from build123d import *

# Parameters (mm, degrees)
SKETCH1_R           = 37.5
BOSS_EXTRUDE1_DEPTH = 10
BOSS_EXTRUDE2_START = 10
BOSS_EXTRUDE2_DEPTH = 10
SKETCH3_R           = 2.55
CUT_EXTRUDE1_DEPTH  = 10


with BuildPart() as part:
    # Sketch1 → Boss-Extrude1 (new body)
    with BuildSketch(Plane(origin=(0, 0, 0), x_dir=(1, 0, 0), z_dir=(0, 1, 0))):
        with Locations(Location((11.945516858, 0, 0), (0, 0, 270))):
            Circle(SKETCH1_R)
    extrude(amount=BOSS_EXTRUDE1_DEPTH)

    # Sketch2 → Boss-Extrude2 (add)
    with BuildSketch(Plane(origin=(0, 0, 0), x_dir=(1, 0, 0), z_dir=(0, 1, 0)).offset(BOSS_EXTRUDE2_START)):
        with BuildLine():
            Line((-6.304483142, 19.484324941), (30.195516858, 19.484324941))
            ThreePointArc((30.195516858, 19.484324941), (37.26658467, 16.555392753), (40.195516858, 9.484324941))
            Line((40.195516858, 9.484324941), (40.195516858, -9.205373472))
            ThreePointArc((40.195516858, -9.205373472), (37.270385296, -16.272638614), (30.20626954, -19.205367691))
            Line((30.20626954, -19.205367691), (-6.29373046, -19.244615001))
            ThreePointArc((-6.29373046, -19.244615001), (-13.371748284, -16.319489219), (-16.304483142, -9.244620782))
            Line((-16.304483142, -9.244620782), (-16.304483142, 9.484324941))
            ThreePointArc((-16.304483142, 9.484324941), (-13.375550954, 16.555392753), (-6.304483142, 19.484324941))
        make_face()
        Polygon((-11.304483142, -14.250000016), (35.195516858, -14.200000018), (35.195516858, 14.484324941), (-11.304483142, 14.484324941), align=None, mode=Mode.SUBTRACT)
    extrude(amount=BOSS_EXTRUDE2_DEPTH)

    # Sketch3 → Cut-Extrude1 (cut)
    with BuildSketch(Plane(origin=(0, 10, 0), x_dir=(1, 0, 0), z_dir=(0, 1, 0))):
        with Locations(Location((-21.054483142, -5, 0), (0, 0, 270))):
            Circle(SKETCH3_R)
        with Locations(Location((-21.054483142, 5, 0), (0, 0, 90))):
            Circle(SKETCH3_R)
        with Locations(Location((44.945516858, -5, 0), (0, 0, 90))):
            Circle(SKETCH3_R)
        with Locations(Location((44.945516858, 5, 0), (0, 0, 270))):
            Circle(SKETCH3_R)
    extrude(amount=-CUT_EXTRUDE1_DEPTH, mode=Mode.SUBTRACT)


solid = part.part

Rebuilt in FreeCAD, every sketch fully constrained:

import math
import FreeCAD as App
import Part
import Sketcher

V = App.Vector
Q = App.Units.Quantity


def add_polygon(sketch, points):
    """Adds a closed chain of lines whose ends are joined by coincident constraints."""
    first, n = sketch.GeometryCount, len(points)
    for a, b in zip(points, points[1:] + points[:1]):
        sketch.addGeometry(Part.LineSegment(App.Vector(*a, 0), App.Vector(*b, 0)), False)
    for i in range(n):
        sketch.addConstraint(Sketcher.Constraint("Coincident", first + i, 2, first + (i + 1) % n, 1))

doc = App.newDocument("Part")
body = doc.addObject("PartDesign::Body", "Body")

# Sketch on XZ plane
sketch1 = body.newObject("Sketcher::SketchObject", "Sketch")
sketch1.AttachmentSupport = (doc.getObject("XZ_Plane"), [""])
sketch1.MapMode = "FlatFace"
sketch1.addGeometry(Part.Circle(V(12, 0, 0), V(0, 0, 1), 38), False)
sketch1.addConstraint([
    Sketcher.Constraint("PointOnObject", 0, 3, -1),
    Sketcher.Constraint("Diameter", 0, Q("75 mm")),
    Sketcher.Constraint("DistanceX", -1, 1, 0, 3, Q("11.945517 mm")),
])
pad1 = body.newObject("PartDesign::Pad", "Pad")
pad1.Profile = sketch1
pad1.Length = 10
pad1.Reversed = True

# Sketch on XZ plane
sketch2 = body.newObject("Sketcher::SketchObject", "Sketch001")
sketch2.AttachmentSupport = (doc.getObject("XZ_Plane"), [""])
sketch2.MapMode = "FlatFace"
sketch2.AttachmentOffset = App.Placement(V(0, 0, -10), App.Rotation())
sketch2.addGeometry(Part.LineSegment(V(30, -19, 0), V(-6, -19, 0)), False)  # 0
sketch2.addGeometry(Part.ArcOfCircle(Part.Circle(V(-6, -9, 0), V(0, 0, 1), 10), math.radians(180), math.radians(270)), False)  # 1
sketch2.addGeometry(Part.LineSegment(V(-16, -9, 0), V(-16, 9, 0)), False)  # 2
sketch2.addGeometry(Part.ArcOfCircle(Part.Circle(V(-6, 9, 0), V(0, 0, 1), 10), math.radians(90), math.radians(180)), False)  # 3
sketch2.addGeometry(Part.LineSegment(V(-6, 19, 0), V(30, 19, 0)), False)  # 4
sketch2.addGeometry(Part.ArcOfCircle(Part.Circle(V(30, 9, 0), V(0, 0, 1), 10), math.radians(0), math.radians(90)), False)  # 5
sketch2.addGeometry(Part.LineSegment(V(40, 9, 0), V(40, -9, 0)), False)  # 6
sketch2.addGeometry(Part.ArcOfCircle(Part.Circle(V(30, -9, 0), V(0, 0, 1), 10), math.radians(-90), math.radians(0)), False)  # 7
add_polygon(sketch2, [(-11, 14), (-11, -14), (35, -14), (35, 14)])  # lines 8-11
sketch2.addConstraint([
    Sketcher.Constraint("Tangent", 0, 2, 1, 2),
    Sketcher.Constraint("Tangent", 1, 1, 2, 1),
    Sketcher.Constraint("Tangent", 2, 2, 3, 2),
    Sketcher.Constraint("Tangent", 3, 1, 4, 1),
    Sketcher.Constraint("Tangent", 4, 2, 5, 2),
    Sketcher.Constraint("Tangent", 5, 1, 6, 1),
    Sketcher.Constraint("Tangent", 6, 2, 7, 2),
    Sketcher.Constraint("Tangent", 7, 1, 0, 1),
    Sketcher.Constraint("Horizontal", 0),
    Sketcher.Constraint("Vertical", 2),
    Sketcher.Constraint("Vertical", 6),
    Sketcher.Constraint("Vertical", 8),
    Sketcher.Constraint("Horizontal", 9),
    Sketcher.Constraint("Vertical", 10),
    Sketcher.Constraint("Equal", 1, 3),
    Sketcher.Constraint("Equal", 3, 5),
    Sketcher.Constraint("Equal", 5, 7),
    Sketcher.Constraint("Parallel", 4, 11),
    Sketcher.Constraint("Radius", 1, Q("10 mm")),
    Sketcher.Constraint("DistanceX", 0, 2, 0, 1, Q("36.5 mm")),
    Sketcher.Constraint("DistanceX", 9, 1, 9, 2, Q("46.5 mm")),
    Sketcher.Constraint("DistanceX", 8, 2, 1, 3, Q("5 mm")),
    Sketcher.Constraint("DistanceY", 8, 2, 1, 3, Q("5 mm")),
    Sketcher.Constraint("DistanceY", -1, 1, 10, 2, Q("14.2 mm")),
    Sketcher.Constraint("DistanceY", -1, 1, 11, 2, Q("14.25 mm")),
    Sketcher.Constraint("DistanceY", 6, 2, 6, 1, Q("18.689698 mm")),
    Sketcher.Constraint("DistanceY", 8, 2, 8, 1, Q("28.734325 mm")),
    Sketcher.Constraint("DistanceX", 3, 1, -1, 1, Q("6.29373 mm")),
])
pad2 = body.newObject("PartDesign::Pad", "Pad001")
pad2.Profile = sketch2
pad2.Length = 10
pad2.Reversed = True

# Sketch on XZ plane
sketch3 = body.newObject("Sketcher::SketchObject", "Sketch002")
sketch3.AttachmentSupport = (doc.getObject("XZ_Plane"), [""])
sketch3.MapMode = "FlatFace"
sketch3.AttachmentOffset = App.Placement(V(0, 0, -10), App.Rotation())
sketch3.addGeometry([
    Part.Circle(V(-21.1, 5, 0), V(0, 0, 1), 2.5),
    Part.Circle(V(-21.1, -5, 0), V(0, 0, 1), 2.5),
    Part.Circle(V(44.9, 5, 0), V(0, 0, 1), 2.5),
    Part.Circle(V(44.9, -5, 0), V(0, 0, 1), 2.5),
], False)
sketch3.addConstraint([
    Sketcher.Constraint("Equal", 0, 1),
    Sketcher.Constraint("Equal", 1, 2),
    Sketcher.Constraint("Equal", 2, 3),
    Sketcher.Constraint("Symmetric", 0, 3, 1, 3, -1),
    Sketcher.Constraint("Symmetric", 2, 3, 3, 3, -1),
    Sketcher.Constraint("Horizontal", 0, 3, 2, 3),
    Sketcher.Constraint("Diameter", 0, Q("5.1 mm")),
    Sketcher.Constraint("DistanceY", -1, 1, 0, 3, Q("5 mm")),
    Sketcher.Constraint("DistanceX", 0, 3, 2, 3, Q("66 mm")),
    Sketcher.Constraint("DistanceX", 0, 3, -1, 1, Q("21.054483 mm")),
])
pocket1 = body.newObject("PartDesign::Pocket", "Pocket")
pocket1.Profile = sketch3
pocket1.Length = 10
pocket1.Reversed = True

doc.recompute()
